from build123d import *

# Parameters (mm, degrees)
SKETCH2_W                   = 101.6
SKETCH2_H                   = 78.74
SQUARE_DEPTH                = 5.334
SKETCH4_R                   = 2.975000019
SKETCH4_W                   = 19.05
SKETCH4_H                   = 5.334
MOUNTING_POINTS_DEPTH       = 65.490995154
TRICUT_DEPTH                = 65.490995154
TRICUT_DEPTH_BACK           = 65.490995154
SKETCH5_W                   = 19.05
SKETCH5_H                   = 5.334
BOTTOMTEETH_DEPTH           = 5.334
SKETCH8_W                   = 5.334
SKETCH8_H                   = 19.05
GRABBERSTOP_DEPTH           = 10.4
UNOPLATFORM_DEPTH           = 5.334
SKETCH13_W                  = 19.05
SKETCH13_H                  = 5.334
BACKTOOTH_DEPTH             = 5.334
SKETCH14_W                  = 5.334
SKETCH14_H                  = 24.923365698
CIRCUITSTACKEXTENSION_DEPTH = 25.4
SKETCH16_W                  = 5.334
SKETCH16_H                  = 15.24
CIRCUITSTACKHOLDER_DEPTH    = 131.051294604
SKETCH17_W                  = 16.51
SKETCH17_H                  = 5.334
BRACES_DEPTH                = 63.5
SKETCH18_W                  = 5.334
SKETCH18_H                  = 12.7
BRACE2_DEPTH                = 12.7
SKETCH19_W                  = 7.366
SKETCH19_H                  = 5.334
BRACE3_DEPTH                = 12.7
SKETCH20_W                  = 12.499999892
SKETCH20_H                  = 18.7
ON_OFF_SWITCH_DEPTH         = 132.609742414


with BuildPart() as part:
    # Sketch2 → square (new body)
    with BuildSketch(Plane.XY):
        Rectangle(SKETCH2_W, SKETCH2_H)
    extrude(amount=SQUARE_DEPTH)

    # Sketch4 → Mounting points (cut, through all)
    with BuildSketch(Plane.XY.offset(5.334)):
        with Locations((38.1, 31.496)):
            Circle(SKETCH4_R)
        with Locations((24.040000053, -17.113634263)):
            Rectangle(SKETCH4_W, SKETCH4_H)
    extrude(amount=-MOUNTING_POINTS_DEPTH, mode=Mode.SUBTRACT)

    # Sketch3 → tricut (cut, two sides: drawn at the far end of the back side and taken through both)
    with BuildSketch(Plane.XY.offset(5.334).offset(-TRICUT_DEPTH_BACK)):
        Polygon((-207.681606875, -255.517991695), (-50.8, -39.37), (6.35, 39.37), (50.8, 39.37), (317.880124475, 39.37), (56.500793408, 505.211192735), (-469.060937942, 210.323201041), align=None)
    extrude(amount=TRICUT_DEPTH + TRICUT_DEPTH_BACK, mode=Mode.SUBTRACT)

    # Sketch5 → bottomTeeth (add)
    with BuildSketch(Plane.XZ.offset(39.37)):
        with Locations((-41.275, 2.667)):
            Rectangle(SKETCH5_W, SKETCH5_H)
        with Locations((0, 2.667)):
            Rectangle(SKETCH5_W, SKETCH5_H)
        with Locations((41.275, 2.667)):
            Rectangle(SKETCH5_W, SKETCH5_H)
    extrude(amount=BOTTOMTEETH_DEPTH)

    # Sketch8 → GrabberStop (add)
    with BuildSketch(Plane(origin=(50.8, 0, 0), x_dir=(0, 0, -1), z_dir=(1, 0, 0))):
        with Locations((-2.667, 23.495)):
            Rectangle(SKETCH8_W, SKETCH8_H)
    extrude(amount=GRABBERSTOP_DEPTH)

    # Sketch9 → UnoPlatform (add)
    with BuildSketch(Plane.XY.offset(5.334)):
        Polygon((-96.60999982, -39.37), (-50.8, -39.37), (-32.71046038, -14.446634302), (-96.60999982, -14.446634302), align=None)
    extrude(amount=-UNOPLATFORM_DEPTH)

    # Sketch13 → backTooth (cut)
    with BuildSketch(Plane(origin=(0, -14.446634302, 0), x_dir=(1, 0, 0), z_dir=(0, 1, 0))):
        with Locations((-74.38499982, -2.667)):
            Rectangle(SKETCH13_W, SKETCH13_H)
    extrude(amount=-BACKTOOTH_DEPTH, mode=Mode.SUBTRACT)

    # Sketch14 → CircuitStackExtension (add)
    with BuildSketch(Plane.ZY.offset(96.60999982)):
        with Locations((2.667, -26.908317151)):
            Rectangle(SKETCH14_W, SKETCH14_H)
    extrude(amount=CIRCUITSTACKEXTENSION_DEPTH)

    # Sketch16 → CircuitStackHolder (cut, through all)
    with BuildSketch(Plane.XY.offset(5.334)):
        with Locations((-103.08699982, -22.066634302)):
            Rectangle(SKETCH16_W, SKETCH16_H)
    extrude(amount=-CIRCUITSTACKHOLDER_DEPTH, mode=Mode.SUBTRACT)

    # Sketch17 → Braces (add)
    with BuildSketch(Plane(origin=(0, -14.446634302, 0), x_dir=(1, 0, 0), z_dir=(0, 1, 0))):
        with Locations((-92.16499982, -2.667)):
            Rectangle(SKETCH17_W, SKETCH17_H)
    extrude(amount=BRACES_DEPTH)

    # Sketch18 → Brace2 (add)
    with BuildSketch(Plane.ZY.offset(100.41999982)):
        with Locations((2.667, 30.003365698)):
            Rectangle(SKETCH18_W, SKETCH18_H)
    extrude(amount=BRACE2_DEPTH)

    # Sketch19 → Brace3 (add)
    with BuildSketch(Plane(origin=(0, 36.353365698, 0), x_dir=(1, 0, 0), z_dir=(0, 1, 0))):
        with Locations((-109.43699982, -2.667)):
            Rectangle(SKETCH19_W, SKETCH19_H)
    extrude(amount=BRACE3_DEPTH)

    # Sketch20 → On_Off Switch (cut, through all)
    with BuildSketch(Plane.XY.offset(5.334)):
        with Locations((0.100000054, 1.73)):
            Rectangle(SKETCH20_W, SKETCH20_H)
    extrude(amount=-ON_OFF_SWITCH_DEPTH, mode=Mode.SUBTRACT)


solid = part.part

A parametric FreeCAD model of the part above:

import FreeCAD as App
import Part
import Sketcher

V = App.Vector
Q = App.Units.Quantity

doc = App.newDocument("Part")
params = doc.addObject("Spreadsheet::Sheet", "Params")
for row, (alias, value) in enumerate([
    ("sketch1_width", "4 in"),
    ("sketch1_height", "3.1 in"),
    ("pad1_length", "0.21 in"),
    ("sketch2_width", "0.75 in"),
    ("sketch2_height", "0.21 in"),
    ("sketch4_width", "0.75 in"),
    ("sketch4_height", "0.21 in"),
    ("pad2_length", "0.21 in"),
    ("sketch5_width", "0.75 in"),
    ("sketch5_height", "0.21 in"),
    ("pad3_length", "10.4 mm"),
    ("pad4_length", "0.21 in"),
    ("sketch7_width", "0.75 in"),
    ("sketch7_height", "0.21 in"),
    ("pocket3_length", "0.21 in"),
    ("sketch8_height", "0.21 in"),
    ("pad5_length", "1 in"),
    ("sketch9_height", "0.6 in"),
    ("sketch9_width", "0.21 in"),
    ("sketch10_width", "0.65 in"),
    ("sketch10_height", "0.21 in"),
    ("pad6_length", "2.5 in"),
    ("sketch11_width", "0.5 in"),
    ("sketch11_height", "0.21 in"),
    ("pad7_length", "0.5 in"),
    ("sketch12_width", "0.29 in"),
    ("sketch12_height", "0.21 in"),
    ("pad8_length", "0.5 in"),
], start=1):
    params.set(f"A{row}", alias)
    params.set(f"B{row}", "=" + value)
    params.setAlias(f"B{row}", alias)

body = doc.addObject("PartDesign::Body", "Body")

# Sketch on XY plane
sketch1 = body.newObject("Sketcher::SketchObject", "Sketch")
sketch1.AttachmentSupport = (doc.getObject("XY_Plane"), [""])
sketch1.MapMode = "FlatFace"
sketch1.addGeometry([
    Part.LineSegment(V(-51, 39, 0), V(-51, -39, 0)),
    Part.LineSegment(V(-51, -39, 0), V(51, -39, 0)),
    Part.LineSegment(V(51, -39, 0), V(51, 39, 0)),
    Part.LineSegment(V(51, 39, 0), V(-51, 39, 0)),
], False)
sketch1.addConstraint([
    Sketcher.Constraint("Coincident", 0, 2, 1, 1),
    Sketcher.Constraint("Coincident", 1, 2, 2, 1),
    Sketcher.Constraint("Coincident", 2, 2, 3, 1),
    Sketcher.Constraint("Coincident", 3, 2, 0, 1),
    Sketcher.Constraint("Vertical", 0),
    Sketcher.Constraint("Horizontal", 1),
    Sketcher.Constraint("Vertical", 2),
    Sketcher.Constraint("Horizontal", 3),
    Sketcher.Constraint("Symmetric", 0, 2, 2, 2, -1, 1),
    Sketcher.Constraint("DistanceX", 1, 1, 1, 2, Q("4 in")),
    Sketcher.Constraint("DistanceY", 0, 2, 0, 1, Q("3.1 in")),
])
sketch1.setExpression("Constraints[9]", "Params.sketch1_width")
sketch1.setExpression("Constraints[10]", "Params.sketch1_height")
pad1 = body.newObject("PartDesign::Pad", "Pad")
pad1.Profile = sketch1
pad1.setExpression("Length", "Params.pad1_length")

# Sketch on XY plane
sketch2 = body.newObject("Sketcher::SketchObject", "Sketch001")
sketch2.AttachmentSupport = (doc.getObject("XY_Plane"), [""])
sketch2.MapMode = "FlatFace"
sketch2.AttachmentOffset = App.Placement(V(0, 0, 0.21 * 25.4), App.Rotation())
sketch2.addGeometry([
    Part.Circle(V(38.1, 31.5, 0), V(0, 0, 1), 3),  # 0
    Part.LineSegment(V(14.5, -14.4, 0), V(14.5, -19.8, 0)),  # 1
    Part.LineSegment(V(14.5, -19.8, 0), V(33.6, -19.8, 0)),  # 2
    Part.LineSegment(V(33.6, -19.8, 0), V(33.6, -14.4, 0)),  # 3
    Part.LineSegment(V(33.6, -14.4, 0), V(14.5, -14.4, 0)),  # 4
], False)
sketch2.addConstraint([
    Sketcher.Constraint("Coincident", 1, 2, 2, 1),
    Sketcher.Constraint("Coincident", 2, 2, 3, 1),
    Sketcher.Constraint("Coincident", 3, 2, 4, 1),
    Sketcher.Constraint("Coincident", 4, 2, 1, 1),
    Sketcher.Constraint("Vertical", 1),
    Sketcher.Constraint("Horizontal", 2),
    Sketcher.Constraint("Vertical", 3),
    Sketcher.Constraint("Horizontal", 4),
    Sketcher.Constraint("DistanceX", 2, 1, 2, 2, Q("0.75 in")),
    Sketcher.Constraint("DistanceY", 1, 2, 1, 1, Q("0.21 in")),
    Sketcher.Constraint("DistanceX", -1, 1, 0, 3, Q("1.5 in")),
    Sketcher.Constraint("Diameter", 0, Q("5.95 mm")),
    Sketcher.Constraint("DistanceY", -1, 1, 0, 3, Q("1.24 in")),
    Sketcher.Constraint("DistanceX", -1, 1, 1, 2, Q("14.515 mm")),
    Sketcher.Constraint("DistanceY", 1, 2, -1, 1, Q("19.780634 mm")),
])
sketch2.setExpression("Constraints[8]", "Params.sketch2_width")
sketch2.setExpression("Constraints[9]", "Params.sketch2_height")
pocket1 = body.newObject("PartDesign::Pocket", "Pocket")
pocket1.Profile = sketch2
pocket1.Type = "ThroughAll"

# Sketch on XY plane
sketch3 = body.newObject("Sketcher::SketchObject", "Sketch002")
sketch3.AttachmentSupport = (doc.getObject("XY_Plane"), [""])
sketch3.MapMode = "FlatFace"
sketch3.AttachmentOffset = App.Placement(V(0, 0, 0.21 * 25.4), App.Rotation())
sketch3.addGeometry([
    Part.LineSegment(V(-208, -256, 0), V(-51, -39, 0)),  # 0
    Part.LineSegment(V(-51, -39, 0), V(6, 39, 0)),  # 1
    Part.LineSegment(V(6, 39, 0), V(318, 39, 0)),  # 2
    Part.LineSegment(V(318, 39, 0), V(57, 505, 0)),  # 3
    Part.LineSegment(V(57, 505, 0), V(-469, 210, 0)),  # 4
    Part.LineSegment(V(-469, 210, 0), V(-208, -256, 0)),  # 5
], False)
sketch3.addConstraint([
    Sketcher.Constraint("Coincident", 0, 2, 1, 1),
    Sketcher.Constraint("Coincident", 1, 2, 2, 1),
    Sketcher.Constraint("Coincident", 2, 2, 3, 1),
    Sketcher.Constraint("Coincident", 3, 2, 4, 1),
    Sketcher.Constraint("Coincident", 4, 2, 5, 1),
    Sketcher.Constraint("Coincident", 5, 2, 0, 1),
    Sketcher.Constraint("Horizontal", 2),
    Sketcher.Constraint("Parallel", 0, 1),
    Sketcher.Constraint("Perpendicular", 3, 4),
    Sketcher.Constraint("Perpendicular", 4, 5),
    Sketcher.Constraint("Equal", 3, 5),
    Sketcher.Constraint("DistanceX", 0, 2, -1, 1, Q("2 in")),
    Sketcher.Constraint("DistanceY", 0, 2, 1, 2, Q("3.1 in")),
    Sketcher.Constraint("DistanceY", 0, 2, -1, 1, Q("1.55 in")),
    Sketcher.Constraint("DistanceX", -1, 1, 1, 2, Q("0.25 in")),
    Sketcher.Constraint("DistanceY", -1, 1, 4, 2, Q("210.323201 mm")),
    Sketcher.Constraint("DistanceX", 5, 2, 3, 2, Q("264.1824 mm")),
    Sketcher.Constraint("Distance", 3, Q("534.160249 mm")),
])
pocket2 = body.newObject("PartDesign::Pocket", "Pocket001")
pocket2.Profile = sketch3
pocket2.Type = "ThroughAll"
pocket2.Midplane = True

# Sketch on XZ plane
sketch4 = body.newObject("Sketcher::SketchObject", "Sketch003")
sketch4.AttachmentSupport = (doc.getObject("XZ_Plane"), [""])
sketch4.MapMode = "FlatFace"
sketch4.AttachmentOffset = App.Placement(V(0, 0, 1.55 * 25.4), App.Rotation())
sketch4.addGeometry([
    Part.LineSegment(V(-51, 5, 0), V(-51, 0, 0)),  # 0
    Part.LineSegment(V(-51, 0, 0), V(-32, 0, 0)),  # 1
    Part.LineSegment(V(-32, 0, 0), V(-32, 5, 0)),  # 2
    Part.LineSegment(V(-32, 5, 0), V(-51, 5, 0)),  # 3
    Part.LineSegment(V(-10, 5, 0), V(-10, 0, 0)),  # 4
    Part.LineSegment(V(-10, 0, 0), V(10, 0, 0)),  # 5
    Part.LineSegment(V(10, 0, 0), V(10, 5, 0)),  # 6
    Part.LineSegment(V(10, 5, 0), V(-10, 5, 0)),  # 7
    Part.LineSegment(V(32, 5, 0), V(32, 0, 0)),  # 8
    Part.LineSegment(V(32, 0, 0), V(51, 0, 0)),  # 9
    Part.LineSegment(V(51, 0, 0), V(51, 5, 0)),  # 10
    Part.LineSegment(V(51, 5, 0), V(32, 5, 0)),  # 11
], False)
sketch4.addConstraint([
    Sketcher.Constraint("Coincident", 0, 2, 1, 1),
    Sketcher.Constraint("Coincident", 1, 2, 2, 1),
    Sketcher.Constraint("Coincident", 2, 2, 3, 1),
    Sketcher.Constraint("Coincident", 3, 2, 0, 1),
    Sketcher.Constraint("Coincident", 4, 2, 5, 1),
    Sketcher.Constraint("Coincident", 5, 2, 6, 1),
    Sketcher.Constraint("Coincident", 6, 2, 7, 1),
    Sketcher.Constraint("Coincident", 7, 2, 4, 1),
    Sketcher.Constraint("Coincident", 8, 2, 9, 1),
    Sketcher.Constraint("Coincident", 9, 2, 10, 1),
    Sketcher.Constraint("Coincident", 10, 2, 11, 1),
    Sketcher.Constraint("Coincident", 11, 2, 8, 1),
    Sketcher.Constraint("Vertical", 0),
    Sketcher.Constraint("Horizontal", 1),
    Sketcher.Constraint("Vertical", 2),
    Sketcher.Constraint("Horizontal", 3),
    Sketcher.Constraint("Vertical", 4),
    Sketcher.Constraint("Horizontal", 5),
    Sketcher.Constraint("Vertical", 6),
    Sketcher.Constraint("Horizontal", 7),
    Sketcher.Constraint("Vertical", 8),
    Sketcher.Constraint("Horizontal", 9),
    Sketcher.Constraint("Vertical", 10),
    Sketcher.Constraint("Horizontal", 11),
    Sketcher.Constraint("Symmetric", 4, 2, 5, 2, -1, 1),
    Sketcher.Constraint("Symmetric", 1, 2, 8, 2, -1, 1),
    Sketcher.Constraint("Symmetric", 0, 2, 9, 2, -2),
    Sketcher.Constraint("Horizontal", 3, 2, 6, 2),
    Sketcher.Constraint("Horizontal", 7, 2, 10, 2),
    Sketcher.Constraint("Equal", 3, 5),
    Sketcher.Constraint("DistanceX", 0, 2, -1, 1, Q("2 in")),
    Sketcher.Constraint("DistanceX", 1, 1, 1, 2, Q("0.75 in")),
    Sketcher.Constraint("DistanceY", 0, 2, 0, 1, Q("0.21 in")),
])
sketch4.setExpression("Constraints[31]", "Params.sketch4_width")
sketch4.setExpression("Constraints[32]", "Params.sketch4_height")
pad2 = body.newObject("PartDesign::Pad", "Pad001")
pad2.Profile = sketch4
pad2.setExpression("Length", "Params.pad2_length")

# Sketch on YZ plane
sketch5 = body.newObject("Sketcher::SketchObject", "Sketch004")
sketch5.AttachmentSupport = (doc.getObject("YZ_Plane"), [""])
sketch5.MapMode = "FlatFace"
sketch5.AttachmentOffset = App.Placement(V(0, 0, 2 * 25.4), App.Rotation())
sketch5.addGeometry([
    Part.LineSegment(V(33, 5, 0), V(14, 5, 0)),
    Part.LineSegment(V(14, 5, 0), V(14, 0, 0)),
    Part.LineSegment(V(14, 0, 0), V(33, 0, 0)),
    Part.LineSegment(V(33, 0, 0), V(33, 5, 0)),
], False)
sketch5.addConstraint([
    Sketcher.Constraint("Coincident", 0, 2, 1, 1),
    Sketcher.Constraint("Coincident", 1, 2, 2, 1),
    Sketcher.Constraint("Coincident", 2, 2, 3, 1),
    Sketcher.Constraint("Coincident", 3, 2, 0, 1),
    Sketcher.Constraint("Horizontal", 0),
    Sketcher.Constraint("Vertical", 1),
    Sketcher.Constraint("Horizontal", 2),
    Sketcher.Constraint("Vertical", 3),
    Sketcher.Constraint("PointOnObject", 1, 2, -1),
    Sketcher.Constraint("DistanceX", 0, 2, 0, 1, Q("0.75 in")),
    Sketcher.Constraint("DistanceY", 1, 2, 1, 1, Q("0.21 in")),
    Sketcher.Constraint("DistanceX", -1, 1, 2, 2, Q("1.3 in")),
])
sketch5.setExpression("Constraints[9]", "Params.sketch5_width")
sketch5.setExpression("Constraints[10]", "Params.sketch5_height")
pad3 = body.newObject("PartDesign::Pad", "Pad002")
pad3.Profile = sketch5
pad3.setExpression("Length", "Params.pad3_length")

# Sketch on XY plane
sketch6 = body.newObject("Sketcher::SketchObject", "Sketch005")
sketch6.AttachmentSupport = (doc.getObject("XY_Plane"), [""])
sketch6.MapMode = "FlatFace"
sketch6.AttachmentOffset = App.Placement(V(0, 0, 0.21 * 25.4), App.Rotation())
sketch6.addGeometry([
    Part.LineSegment(V(-97, -39, 0), V(-51, -39, 0)),
    Part.LineSegment(V(-51, -39, 0), V(-33, -14, 0)),
    Part.LineSegment(V(-33, -14, 0), V(-97, -14, 0)),
    Part.LineSegment(V(-97, -14, 0), V(-97, -39, 0)),
], False)
sketch6.addConstraint([
    Sketcher.Constraint("Coincident", 0, 2, 1, 1),
    Sketcher.Constraint("Coincident", 1, 2, 2, 1),
    Sketcher.Constraint("Coincident", 2, 2, 3, 1),
    Sketcher.Constraint("Coincident", 3, 2, 0, 1),
    Sketcher.Constraint("Horizontal", 0),
    Sketcher.Constraint("Horizontal", 2),
    Sketcher.Constraint("Vertical", 3),
    Sketcher.Constraint("DistanceX", 0, 2, -1, 1, Q("2 in")),
    Sketcher.Constraint("DistanceY", 0, 2, -1, 1, Q("1.55 in")),
    Sketcher.Constraint("DistanceX", 0, 1, 0, 2, Q("45.81 mm")),
    Sketcher.Constraint("DistanceX", 2, 2, 2, 1, Q("63.899539 mm")),
    Sketcher.Constraint("DistanceY", 3, 2, 3, 1, Q("24.923366 mm")),
])
pad4 = body.newObject("PartDesign::Pad", "Pad003")
pad4.Profile = sketch6
pad4.setExpression("Length", "Params.pad4_length")
pad4.Reversed = True

# Sketch on XZ plane
sketch7 = body.newObject("Sketcher::SketchObject", "Sketch006")
sketch7.AttachmentSupport = (doc.getObject("XZ_Plane"), [""])
sketch7.MapMode = "FlatFace"
sketch7.AttachmentOffset = App.Placement(V(0, 0, 14.446634), App.Rotation())
sketch7.addGeometry([
    Part.LineSegment(V(-84, 0, 0), V(-84, 5, 0)),
    Part.LineSegment(V(-84, 5, 0), V(-65, 5, 0)),
    Part.LineSegment(V(-65, 5, 0), V(-65, 0, 0)),
    Part.LineSegment(V(-65, 0, 0), V(-84, 0, 0)),
], False)
sketch7.addConstraint([
    Sketcher.Constraint("Coincident", 0, 2, 1, 1),
    Sketcher.Constraint("Coincident", 1, 2, 2, 1),
    Sketcher.Constraint("Coincident", 2, 2, 3, 1),
    Sketcher.Constraint("Coincident", 3, 2, 0, 1),
    Sketcher.Constraint("Vertical", 0),
    Sketcher.Constraint("Horizontal", 1),
    Sketcher.Constraint("Vertical", 2),
    Sketcher.Constraint("Horizontal", 3),
    Sketcher.Constraint("PointOnObject", 2, 2, -1),
    Sketcher.Constraint("DistanceX", 1, 1, 1, 2, Q("0.75 in")),
    Sketcher.Constraint("DistanceY", 0, 1, 0, 2, Q("0.21 in")),
    Sketcher.Constraint("DistanceX", 0, 2, -1, 1, Q("83.91 mm")),
])
sketch7.setExpression("Constraints[9]", "Params.sketch7_width")
sketch7.setExpression("Constraints[10]", "Params.sketch7_height")
pocket3 = body.newObject("PartDesign::Pocket", "Pocket002")
pocket3.Profile = sketch7
pocket3.setExpression("Length", "Params.pocket3_length")
pocket3.Reversed = True

# Sketch on YZ plane
sketch8 = body.newObject("Sketcher::SketchObject", "Sketch007")
sketch8.AttachmentSupport = (doc.getObject("YZ_Plane"), [""])
sketch8.MapMode = "FlatFace"
sketch8.AttachmentOffset = App.Placement(V(0, 0, -96.61), App.Rotation())
sketch8.addGeometry([
    Part.LineSegment(V(-14, 0, 0), V(-39, 0, 0)),
    Part.LineSegment(V(-39, 0, 0), V(-39, 5, 0)),
    Part.LineSegment(V(-39, 5, 0), V(-14, 5, 0)),
    Part.LineSegment(V(-14, 5, 0), V(-14, 0, 0)),
], False)
sketch8.addConstraint([
    Sketcher.Constraint("Coincident", 0, 2, 1, 1),
    Sketcher.Constraint("Coincident", 1, 2, 2, 1),
    Sketcher.Constraint("Coincident", 2, 2, 3, 1),
    Sketcher.Constraint("Coincident", 3, 2, 0, 1),
    Sketcher.Constraint("Horizontal", 0),
    Sketcher.Constraint("Vertical", 1),
    Sketcher.Constraint("Horizontal", 2),
    Sketcher.Constraint("Vertical", 3),
    Sketcher.Constraint("PointOnObject", 0, 2, -1),
    Sketcher.Constraint("DistanceY", 1, 1, 1, 2, Q("0.21 in")),
    Sketcher.Constraint("DistanceX", 0, 2, -1, 1, Q("1.55 in")),
    Sketcher.Constraint("DistanceX", 0, 2, 0, 1, Q("24.923366 mm")),
])
sketch8.setExpression("Constraints[9]", "Params.sketch8_height")
pad5 = body.newObject("PartDesign::Pad", "Pad004")
pad5.Profile = sketch8
pad5.setExpression("Length", "Params.pad5_length")
pad5.Reversed = True

# Sketch on XY plane
sketch9 = body.newObject("Sketcher::SketchObject", "Sketch008")
sketch9.AttachmentSupport = (doc.getObject("XY_Plane"), [""])
sketch9.MapMode = "FlatFace"
sketch9.AttachmentOffset = App.Placement(V(0, 0, 0.21 * 25.4), App.Rotation())
sketch9.addGeometry([
    Part.LineSegment(V(-106, -14, 0), V(-106, -30, 0)),
    Part.LineSegment(V(-106, -30, 0), V(-100, -30, 0)),
    Part.LineSegment(V(-100, -30, 0), V(-100, -14, 0)),
    Part.LineSegment(V(-100, -14, 0), V(-106, -14, 0)),
], False)
sketch9.addConstraint([
    Sketcher.Constraint("Coincident", 0, 2, 1, 1),
    Sketcher.Constraint("Coincident", 1, 2, 2, 1),
    Sketcher.Constraint("Coincident", 2, 2, 3, 1),
    Sketcher.Constraint("Coincident", 3, 2, 0, 1),
    Sketcher.Constraint("Vertical", 0),
    Sketcher.Constraint("Horizontal", 1),
    Sketcher.Constraint("Vertical", 2),
    Sketcher.Constraint("Horizontal", 3),
    Sketcher.Constraint("DistanceY", 0, 2, 0, 1, Q("0.6 in")),
    Sketcher.Constraint("DistanceX", 1, 1, 1, 2, Q("0.21 in")),
    Sketcher.Constraint("DistanceX", 0, 2, -1, 1, Q("105.754 mm")),
    Sketcher.Constraint("DistanceY", 0, 2, -1, 1, Q("29.686634 mm")),
])
sketch9.setExpression("Constraints[8]", "Params.sketch9_height")
sketch9.setExpression("Constraints[9]", "Params.sketch9_width")
pocket4 = body.newObject("PartDesign::Pocket", "Pocket003")
pocket4.Profile = sketch9
pocket4.Type = "ThroughAll"

# Sketch on XZ plane
sketch10 = body.newObject("Sketcher::SketchObject", "Sketch009")
sketch10.AttachmentSupport = (doc.getObject("XZ_Plane"), [""])
sketch10.MapMode = "FlatFace"
sketch10.AttachmentOffset = App.Placement(V(0, 0, 14.446634), App.Rotation())
sketch10.addGeometry([
    Part.LineSegment(V(-100, 0, 0), V(-100, 5, 0)),
    Part.LineSegment(V(-100, 5, 0), V(-84, 5, 0)),
    Part.LineSegment(V(-84, 5, 0), V(-84, 0, 0)),
    Part.LineSegment(V(-84, 0, 0), V(-100, 0, 0)),
], False)
sketch10.addConstraint([
    Sketcher.Constraint("Coincident", 0, 2, 1, 1),
    Sketcher.Constraint("Coincident", 1, 2, 2, 1),
    Sketcher.Constraint("Coincident", 2, 2, 3, 1),
    Sketcher.Constraint("Coincident", 3, 2, 0, 1),
    Sketcher.Constraint("Vertical", 0),
    Sketcher.Constraint("Horizontal", 1),
    Sketcher.Constraint("Vertical", 2),
    Sketcher.Constraint("Horizontal", 3),
    Sketcher.Constraint("PointOnObject", 2, 2, -1),
    Sketcher.Constraint("DistanceX", 1, 1, 1, 2, Q("0.65 in")),
    Sketcher.Constraint("DistanceY", 0, 1, 0, 2, Q("0.21 in")),
    Sketcher.Constraint("DistanceX", 0, 2, -1, 1, Q("100.42 mm")),
])
sketch10.setExpression("Constraints[9]", "Params.sketch10_width")
sketch10.setExpression("Constraints[10]", "Params.sketch10_height")
pad6 = body.newObject("PartDesign::Pad", "Pad005")
pad6.Profile = sketch10
pad6.setExpression("Length", "Params.pad6_length")
pad6.Reversed = True

# Sketch on YZ plane
sketch11 = body.newObject("Sketcher::SketchObject", "Sketch010")
sketch11.AttachmentSupport = (doc.getObject("YZ_Plane"), [""])
sketch11.MapMode = "FlatFace"
sketch11.AttachmentOffset = App.Placement(V(0, 0, -100.42), App.Rotation())
sketch11.addGeometry([
    Part.LineSegment(V(36, 0, 0), V(24, 0, 0)),
    Part.LineSegment(V(24, 0, 0), V(24, 5, 0)),
    Part.LineSegment(V(24, 5, 0), V(36, 5, 0)),
    Part.LineSegment(V(36, 5, 0), V(36, 0, 0)),
], False)
sketch11.addConstraint([
    Sketcher.Constraint("Coincident", 0, 2, 1, 1),
    Sketcher.Constraint("Coincident", 1, 2, 2, 1),
    Sketcher.Constraint("Coincident", 2, 2, 3, 1),
    Sketcher.Constraint("Coincident", 3, 2, 0, 1),
    Sketcher.Constraint("Horizontal", 0),
    Sketcher.Constraint("Vertical", 1),
    Sketcher.Constraint("Horizontal", 2),
    Sketcher.Constraint("Vertical", 3),
    Sketcher.Constraint("PointOnObject", 0, 2, -1),
    Sketcher.Constraint("DistanceX", 0, 2, 0, 1, Q("0.5 in")),
    Sketcher.Constraint("DistanceY", 1, 1, 1, 2, Q("0.21 in")),
    Sketcher.Constraint("DistanceX", -1, 1, 0, 2, Q("23.653366 mm")),
])
sketch11.setExpression("Constraints[9]", "Params.sketch11_width")
sketch11.setExpression("Constraints[10]", "Params.sketch11_height")
pad7 = body.newObject("PartDesign::Pad", "Pad006")
pad7.Profile = sketch11
pad7.setExpression("Length", "Params.pad7_length")
pad7.Reversed = True

# Sketch on XZ plane
sketch12 = body.newObject("Sketcher::SketchObject", "Sketch011")
sketch12.AttachmentSupport = (doc.getObject("XZ_Plane"), [""])
sketch12.MapMode = "FlatFace"
sketch12.AttachmentOffset = App.Placement(V(0, 0, -36.353366), App.Rotation())
sketch12.addGeometry([
    Part.LineSegment(V(-113, 0, 0), V(-113, 5, 0)),
    Part.LineSegment(V(-113, 5, 0), V(-106, 5, 0)),
    Part.LineSegment(V(-106, 5, 0), V(-106, 0, 0)),
    Part.LineSegment(V(-106, 0, 0), V(-113, 0, 0)),
], False)
sketch12.addConstraint([
    Sketcher.Constraint("Coincident", 0, 2, 1, 1),
    Sketcher.Constraint("Coincident", 1, 2, 2, 1),
    Sketcher.Constraint("Coincident", 2, 2, 3, 1),
    Sketcher.Constraint("Coincident", 3, 2, 0, 1),
    Sketcher.Constraint("Vertical", 0),
    Sketcher.Constraint("Horizontal", 1),
    Sketcher.Constraint("Vertical", 2),
    Sketcher.Constraint("Horizontal", 3),
    Sketcher.Constraint("PointOnObject", 2, 2, -1),
    Sketcher.Constraint("DistanceX", 1, 1, 1, 2, Q("0.29 in")),
    Sketcher.Constraint("DistanceY", 0, 1, 0, 2, Q("0.21 in")),
    Sketcher.Constraint("DistanceX", 0, 2, -1, 1, Q("113.12 mm")),
])
sketch12.setExpression("Constraints[9]", "Params.sketch12_width")
sketch12.setExpression("Constraints[10]", "Params.sketch12_height")
pad8 = body.newObject("PartDesign::Pad", "Pad007")
pad8.Profile = sketch12
pad8.setExpression("Length", "Params.pad8_length")
pad8.Reversed = True

# Sketch on XY plane
sketch13 = body.newObject("Sketcher::SketchObject", "Sketch012")
sketch13.AttachmentSupport = (doc.getObject("XY_Plane"), [""])
sketch13.MapMode = "FlatFace"
sketch13.AttachmentOffset = App.Placement(V(0, 0, 0.21 * 25.4), App.Rotation())
sketch13.addGeometry([
    Part.LineSegment(V(-6, 11, 0), V(-6, -8, 0)),
    Part.LineSegment(V(-6, -8, 0), V(6, -8, 0)),
    Part.LineSegment(V(6, -8, 0), V(6, 11, 0)),
    Part.LineSegment(V(6, 11, 0), V(-6, 11, 0)),
], False)
sketch13.addConstraint([
    Sketcher.Constraint("Coincident", 0, 2, 1, 1),
    Sketcher.Constraint("Coincident", 1, 2, 2, 1),
    Sketcher.Constraint("Coincident", 2, 2, 3, 1),
    Sketcher.Constraint("Coincident", 3, 2, 0, 1),
    Sketcher.Constraint("Vertical", 0),
    Sketcher.Constraint("Horizontal", 1),
    Sketcher.Constraint("Vertical", 2),
    Sketcher.Constraint("Horizontal", 3),
    Sketcher.Constraint("DistanceY", 0, 2, -1, 1, Q("0.3 in")),
    Sketcher.Constraint("DistanceX", -1, 1, 1, 2, Q("0.25 in")),
    Sketcher.Constraint("DistanceX", 1, 1, 1, 2, Q("12.5 mm")),
    Sketcher.Constraint("DistanceY", 0, 2, 0, 1, Q("18.7 mm")),
])
pocket5 = body.newObject("PartDesign::Pocket", "Pocket004")
pocket5.Profile = sketch13
pocket5.Type = "ThroughAll"

doc.recompute()
